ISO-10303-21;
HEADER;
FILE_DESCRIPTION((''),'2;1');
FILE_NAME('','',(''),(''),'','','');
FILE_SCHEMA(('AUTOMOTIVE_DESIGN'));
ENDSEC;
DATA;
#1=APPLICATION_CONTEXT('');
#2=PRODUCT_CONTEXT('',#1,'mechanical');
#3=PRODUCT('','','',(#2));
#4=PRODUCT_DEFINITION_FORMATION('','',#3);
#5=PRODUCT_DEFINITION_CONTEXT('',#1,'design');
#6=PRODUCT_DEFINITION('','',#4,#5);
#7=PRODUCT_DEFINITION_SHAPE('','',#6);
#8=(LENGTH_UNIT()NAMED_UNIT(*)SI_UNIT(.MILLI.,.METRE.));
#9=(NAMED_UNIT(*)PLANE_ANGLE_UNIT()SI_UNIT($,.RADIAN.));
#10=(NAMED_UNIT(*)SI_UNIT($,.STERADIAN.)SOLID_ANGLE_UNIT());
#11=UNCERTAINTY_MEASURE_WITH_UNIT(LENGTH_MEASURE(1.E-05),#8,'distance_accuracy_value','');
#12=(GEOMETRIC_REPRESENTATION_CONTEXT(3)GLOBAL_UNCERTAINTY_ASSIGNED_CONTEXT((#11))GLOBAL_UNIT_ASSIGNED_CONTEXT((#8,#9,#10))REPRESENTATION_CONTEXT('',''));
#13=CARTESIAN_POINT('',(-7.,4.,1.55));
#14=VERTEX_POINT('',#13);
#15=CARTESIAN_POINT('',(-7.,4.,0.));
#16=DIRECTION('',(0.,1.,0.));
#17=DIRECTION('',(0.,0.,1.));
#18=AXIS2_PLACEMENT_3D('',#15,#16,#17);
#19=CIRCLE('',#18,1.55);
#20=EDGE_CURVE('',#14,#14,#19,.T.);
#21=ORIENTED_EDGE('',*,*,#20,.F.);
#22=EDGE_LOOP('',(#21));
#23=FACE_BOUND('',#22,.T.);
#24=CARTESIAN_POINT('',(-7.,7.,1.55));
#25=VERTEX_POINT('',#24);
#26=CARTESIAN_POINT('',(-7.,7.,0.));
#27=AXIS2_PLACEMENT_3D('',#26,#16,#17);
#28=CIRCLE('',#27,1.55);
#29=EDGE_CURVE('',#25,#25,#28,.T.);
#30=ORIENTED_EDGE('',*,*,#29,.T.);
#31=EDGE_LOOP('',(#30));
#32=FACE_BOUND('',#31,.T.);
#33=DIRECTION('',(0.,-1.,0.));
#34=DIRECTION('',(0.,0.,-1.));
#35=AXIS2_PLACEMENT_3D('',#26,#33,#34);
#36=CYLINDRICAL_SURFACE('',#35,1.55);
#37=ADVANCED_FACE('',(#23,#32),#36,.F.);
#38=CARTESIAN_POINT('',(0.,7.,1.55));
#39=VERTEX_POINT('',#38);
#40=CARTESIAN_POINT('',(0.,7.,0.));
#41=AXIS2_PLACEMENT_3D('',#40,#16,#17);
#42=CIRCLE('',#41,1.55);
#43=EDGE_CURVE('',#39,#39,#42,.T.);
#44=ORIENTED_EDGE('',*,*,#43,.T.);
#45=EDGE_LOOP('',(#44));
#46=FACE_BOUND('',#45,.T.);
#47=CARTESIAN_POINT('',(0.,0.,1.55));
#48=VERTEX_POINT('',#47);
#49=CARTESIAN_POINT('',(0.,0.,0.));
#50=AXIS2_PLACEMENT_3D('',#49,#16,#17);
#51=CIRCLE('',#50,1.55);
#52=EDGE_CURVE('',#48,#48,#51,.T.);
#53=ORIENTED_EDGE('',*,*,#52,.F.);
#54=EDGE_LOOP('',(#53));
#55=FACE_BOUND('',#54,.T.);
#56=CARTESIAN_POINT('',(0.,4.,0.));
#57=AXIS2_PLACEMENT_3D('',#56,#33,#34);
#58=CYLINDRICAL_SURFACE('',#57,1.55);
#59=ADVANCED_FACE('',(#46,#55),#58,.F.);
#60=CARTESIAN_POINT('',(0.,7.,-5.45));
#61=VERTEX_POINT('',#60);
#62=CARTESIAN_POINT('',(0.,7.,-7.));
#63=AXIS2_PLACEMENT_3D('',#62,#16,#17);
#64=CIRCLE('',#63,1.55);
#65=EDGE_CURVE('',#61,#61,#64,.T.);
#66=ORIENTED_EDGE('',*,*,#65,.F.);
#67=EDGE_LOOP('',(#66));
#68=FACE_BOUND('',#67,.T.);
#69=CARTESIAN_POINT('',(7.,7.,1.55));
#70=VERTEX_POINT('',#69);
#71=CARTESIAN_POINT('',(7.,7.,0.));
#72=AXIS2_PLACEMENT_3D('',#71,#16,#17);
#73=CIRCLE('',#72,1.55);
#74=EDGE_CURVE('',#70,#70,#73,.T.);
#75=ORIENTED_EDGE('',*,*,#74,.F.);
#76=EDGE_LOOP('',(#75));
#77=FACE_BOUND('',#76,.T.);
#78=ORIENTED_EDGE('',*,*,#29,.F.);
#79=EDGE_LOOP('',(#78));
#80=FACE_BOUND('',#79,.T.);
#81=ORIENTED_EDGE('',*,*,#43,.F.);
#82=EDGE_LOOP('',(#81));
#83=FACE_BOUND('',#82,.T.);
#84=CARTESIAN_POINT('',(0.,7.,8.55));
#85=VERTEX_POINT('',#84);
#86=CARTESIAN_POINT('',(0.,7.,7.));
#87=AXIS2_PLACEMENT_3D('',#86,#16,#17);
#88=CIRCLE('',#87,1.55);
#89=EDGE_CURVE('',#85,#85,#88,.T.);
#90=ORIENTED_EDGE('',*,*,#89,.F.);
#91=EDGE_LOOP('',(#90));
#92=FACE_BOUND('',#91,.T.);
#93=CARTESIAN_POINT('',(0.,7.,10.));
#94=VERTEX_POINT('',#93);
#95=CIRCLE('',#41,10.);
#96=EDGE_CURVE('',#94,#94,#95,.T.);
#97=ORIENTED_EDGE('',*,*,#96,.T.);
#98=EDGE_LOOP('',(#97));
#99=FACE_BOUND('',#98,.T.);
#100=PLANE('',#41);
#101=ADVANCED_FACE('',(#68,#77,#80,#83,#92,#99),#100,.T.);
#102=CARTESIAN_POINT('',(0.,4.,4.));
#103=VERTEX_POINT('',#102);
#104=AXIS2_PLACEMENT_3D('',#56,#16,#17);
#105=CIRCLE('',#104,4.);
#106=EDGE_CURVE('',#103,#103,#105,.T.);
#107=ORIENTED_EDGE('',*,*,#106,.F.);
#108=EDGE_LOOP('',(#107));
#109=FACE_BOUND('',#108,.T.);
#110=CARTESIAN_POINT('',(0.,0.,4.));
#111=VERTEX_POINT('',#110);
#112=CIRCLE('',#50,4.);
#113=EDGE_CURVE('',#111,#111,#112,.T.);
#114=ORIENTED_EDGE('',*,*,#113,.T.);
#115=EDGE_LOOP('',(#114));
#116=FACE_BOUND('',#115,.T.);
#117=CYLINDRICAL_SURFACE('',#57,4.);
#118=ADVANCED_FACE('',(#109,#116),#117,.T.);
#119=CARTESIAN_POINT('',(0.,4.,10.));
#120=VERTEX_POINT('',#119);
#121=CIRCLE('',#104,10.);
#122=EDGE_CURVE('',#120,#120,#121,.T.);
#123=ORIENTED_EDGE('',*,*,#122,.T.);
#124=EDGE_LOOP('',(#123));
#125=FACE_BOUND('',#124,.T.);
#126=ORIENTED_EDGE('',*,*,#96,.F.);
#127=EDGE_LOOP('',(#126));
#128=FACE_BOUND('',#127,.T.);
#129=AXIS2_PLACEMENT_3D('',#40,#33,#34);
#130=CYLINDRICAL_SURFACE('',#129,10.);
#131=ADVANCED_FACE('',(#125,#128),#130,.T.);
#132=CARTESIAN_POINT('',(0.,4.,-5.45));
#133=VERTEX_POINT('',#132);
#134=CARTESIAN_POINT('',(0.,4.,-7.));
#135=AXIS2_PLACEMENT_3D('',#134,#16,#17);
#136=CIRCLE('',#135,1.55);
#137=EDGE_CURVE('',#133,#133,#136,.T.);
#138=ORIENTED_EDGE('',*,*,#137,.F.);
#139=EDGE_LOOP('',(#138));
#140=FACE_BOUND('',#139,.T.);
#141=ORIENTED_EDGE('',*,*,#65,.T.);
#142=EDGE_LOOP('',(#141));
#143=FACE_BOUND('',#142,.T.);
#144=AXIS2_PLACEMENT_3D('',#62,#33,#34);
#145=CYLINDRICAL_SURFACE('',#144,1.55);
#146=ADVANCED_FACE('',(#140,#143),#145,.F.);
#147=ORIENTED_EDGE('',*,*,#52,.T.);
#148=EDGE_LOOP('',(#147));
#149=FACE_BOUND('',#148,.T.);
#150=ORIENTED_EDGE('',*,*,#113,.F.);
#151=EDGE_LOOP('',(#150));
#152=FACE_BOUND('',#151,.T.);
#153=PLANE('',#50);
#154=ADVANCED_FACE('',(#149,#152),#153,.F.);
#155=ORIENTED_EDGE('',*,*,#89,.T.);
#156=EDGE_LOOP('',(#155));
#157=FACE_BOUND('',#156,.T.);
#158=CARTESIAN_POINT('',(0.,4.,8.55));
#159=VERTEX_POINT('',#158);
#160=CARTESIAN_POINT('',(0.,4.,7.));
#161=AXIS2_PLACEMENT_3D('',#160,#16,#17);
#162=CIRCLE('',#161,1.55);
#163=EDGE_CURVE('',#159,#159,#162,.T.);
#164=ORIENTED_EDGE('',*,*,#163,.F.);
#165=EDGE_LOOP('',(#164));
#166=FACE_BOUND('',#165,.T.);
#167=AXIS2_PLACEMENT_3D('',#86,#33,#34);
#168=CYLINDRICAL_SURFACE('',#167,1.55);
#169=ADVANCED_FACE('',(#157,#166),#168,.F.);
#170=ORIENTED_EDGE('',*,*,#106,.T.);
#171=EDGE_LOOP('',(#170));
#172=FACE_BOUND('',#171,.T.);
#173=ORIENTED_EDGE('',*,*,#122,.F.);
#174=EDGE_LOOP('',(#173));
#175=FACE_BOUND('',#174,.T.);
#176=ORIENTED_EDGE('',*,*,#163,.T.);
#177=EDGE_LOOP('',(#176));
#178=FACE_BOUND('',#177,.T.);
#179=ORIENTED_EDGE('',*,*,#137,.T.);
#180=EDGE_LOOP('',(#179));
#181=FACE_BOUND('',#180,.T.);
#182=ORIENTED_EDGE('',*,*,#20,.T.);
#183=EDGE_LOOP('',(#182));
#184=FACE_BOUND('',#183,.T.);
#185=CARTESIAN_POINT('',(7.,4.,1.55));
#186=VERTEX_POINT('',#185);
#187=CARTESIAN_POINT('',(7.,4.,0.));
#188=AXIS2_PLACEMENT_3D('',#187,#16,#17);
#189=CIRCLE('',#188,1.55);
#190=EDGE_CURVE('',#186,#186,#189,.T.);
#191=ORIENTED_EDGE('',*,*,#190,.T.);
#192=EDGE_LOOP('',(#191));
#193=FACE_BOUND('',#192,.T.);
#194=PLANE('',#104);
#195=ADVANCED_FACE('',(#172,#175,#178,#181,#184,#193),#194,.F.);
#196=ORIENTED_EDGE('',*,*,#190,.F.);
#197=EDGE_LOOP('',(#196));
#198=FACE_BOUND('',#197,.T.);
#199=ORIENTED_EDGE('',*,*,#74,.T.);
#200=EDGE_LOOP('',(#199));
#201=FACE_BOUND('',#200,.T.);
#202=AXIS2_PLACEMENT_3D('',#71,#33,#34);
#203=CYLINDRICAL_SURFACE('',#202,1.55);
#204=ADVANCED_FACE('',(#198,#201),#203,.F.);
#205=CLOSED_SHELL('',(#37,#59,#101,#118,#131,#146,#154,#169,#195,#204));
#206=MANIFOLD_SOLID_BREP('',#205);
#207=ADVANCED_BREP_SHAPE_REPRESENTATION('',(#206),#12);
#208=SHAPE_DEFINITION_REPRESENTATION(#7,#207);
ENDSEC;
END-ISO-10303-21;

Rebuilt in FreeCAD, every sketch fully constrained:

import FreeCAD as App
import Part
import Sketcher

V = App.Vector
Q = App.Units.Quantity

doc = App.newDocument("Part")
body = doc.addObject("PartDesign::Body", "Body")

sketch1 = doc.addObject("Sketcher::SketchObject", "Sketch")
body.addObject(sketch1)
sketch1.AttachmentSupport = (doc.XZ_Plane, [""])
sketch1.MapMode = "FlatFace"
sketch1.addGeometry(Part.Circle(V(0, 0, 0), V(0, 0, 1), 4), False)
sketch1.addGeometry(Part.Circle(V(0, 0, 0), V(0, 0, 1), 1.6), False)
sketch1.addConstraint(Sketcher.Constraint("Coincident", 0, 3, -1, 1))
sketch1.addConstraint(Sketcher.Constraint("Coincident", 1, 3, -1, 1))
sketch1.addConstraint(Sketcher.Constraint("Diameter", 0, Q("8 mm")))
sketch1.addConstraint(Sketcher.Constraint("Diameter", 1, Q("3.1 mm")))
pad1 = doc.addObject("PartDesign::Pad", "Pad")
body.addObject(pad1)
pad1.Profile = sketch1
pad1.Length = 4
pad1.Reversed = True

sketch2 = doc.addObject("Sketcher::SketchObject", "Sketch001")
body.addObject(sketch2)
sketch2.AttachmentSupport = (doc.XZ_Plane, [""])
sketch2.MapMode = "FlatFace"
sketch2.AttachmentOffset = App.Placement(V(0, 0, -4), App.Rotation())
sketch2.addGeometry(Part.Circle(V(0, 0, 0), V(0, 0, 1), 10), False)
sketch2.addGeometry(Part.Circle(V(0, -7, 0), V(0, 0, 1), 1.6), False)
sketch2.addGeometry(Part.Circle(V(-7, 0, 0), V(0, 0, 1), 1.6), False)
sketch2.addGeometry(Part.Circle(V(0, 0, 0), V(0, 0, 1), 1.6), False)
sketch2.addGeometry(Part.Circle(V(7, 0, 0), V(0, 0, 1), 1.6), False)
sketch2.addGeometry(Part.Circle(V(0, 7, 0), V(0, 0, 1), 1.6), False)
sketch2.addConstraint(Sketcher.Constraint("Coincident", 0, 3, -1, 1))
sketch2.addConstraint(Sketcher.Constraint("Coincident", 3, 3, -1, 1))
sketch2.addConstraint(Sketcher.Constraint("Equal", 1, 2))
sketch2.addConstraint(Sketcher.Constraint("Equal", 2, 3))
sketch2.addConstraint(Sketcher.Constraint("Equal", 3, 4))
sketch2.addConstraint(Sketcher.Constraint("Equal", 4, 5))
sketch2.addConstraint(Sketcher.Constraint("Symmetric", 2, 3, 4, 3, -1, 1))
sketch2.addConstraint(Sketcher.Constraint("Symmetric", 1, 3, 5, 3, -1, 1))
sketch2.addConstraint(Sketcher.Constraint("PointOnObject", 1, 3, -2))
sketch2.addConstraint(Sketcher.Constraint("PointOnObject", 2, 3, -1))
sketch2.addConstraint(Sketcher.Constraint("Diameter", 0, Q("20 mm")))
sketch2.addConstraint(Sketcher.Constraint("Diameter", 1, Q("3.1 mm")))
sketch2.addConstraint(Sketcher.Constraint("DistanceY", 1, 3, -1, 1, Q("7 mm")))
sketch2.addConstraint(Sketcher.Constraint("DistanceX", 2, 3, -1, 1, Q("7 mm")))
pad2 = doc.addObject("PartDesign::Pad", "Pad001")
body.addObject(pad2)
pad2.Profile = sketch2
pad2.Length = 3
pad2.Reversed = True

doc.recompute()
